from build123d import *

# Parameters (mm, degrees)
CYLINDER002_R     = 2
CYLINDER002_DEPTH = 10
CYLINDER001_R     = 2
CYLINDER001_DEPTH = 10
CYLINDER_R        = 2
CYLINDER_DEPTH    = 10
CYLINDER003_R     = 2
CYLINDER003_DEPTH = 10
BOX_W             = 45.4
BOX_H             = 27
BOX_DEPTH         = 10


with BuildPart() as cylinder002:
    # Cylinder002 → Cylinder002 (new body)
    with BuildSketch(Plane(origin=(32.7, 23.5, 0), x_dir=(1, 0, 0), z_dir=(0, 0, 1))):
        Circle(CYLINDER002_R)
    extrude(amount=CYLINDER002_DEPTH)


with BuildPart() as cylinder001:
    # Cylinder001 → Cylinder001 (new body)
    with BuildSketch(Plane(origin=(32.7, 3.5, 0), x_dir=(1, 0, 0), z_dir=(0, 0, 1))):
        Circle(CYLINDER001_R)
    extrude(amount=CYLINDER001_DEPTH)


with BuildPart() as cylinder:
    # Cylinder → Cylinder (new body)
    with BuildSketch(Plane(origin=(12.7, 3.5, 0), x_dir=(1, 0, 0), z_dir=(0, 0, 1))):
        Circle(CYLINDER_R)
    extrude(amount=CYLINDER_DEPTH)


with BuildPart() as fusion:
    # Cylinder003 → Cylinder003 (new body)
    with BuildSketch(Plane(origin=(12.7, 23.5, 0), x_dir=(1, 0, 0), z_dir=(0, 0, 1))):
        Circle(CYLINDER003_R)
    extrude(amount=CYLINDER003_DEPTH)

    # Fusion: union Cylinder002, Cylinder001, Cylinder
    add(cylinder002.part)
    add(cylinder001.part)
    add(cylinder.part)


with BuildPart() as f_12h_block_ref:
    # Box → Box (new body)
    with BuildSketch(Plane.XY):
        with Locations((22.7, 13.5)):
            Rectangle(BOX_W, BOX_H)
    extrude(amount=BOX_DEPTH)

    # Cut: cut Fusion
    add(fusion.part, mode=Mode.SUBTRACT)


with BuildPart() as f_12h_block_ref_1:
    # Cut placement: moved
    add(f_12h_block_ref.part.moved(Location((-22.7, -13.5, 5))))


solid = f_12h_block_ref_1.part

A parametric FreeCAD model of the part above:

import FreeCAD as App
import Part
import Sketcher
from FreeCAD import Vector
Q = App.Units.Quantity

doc = App.newDocument("Part")
body = doc.addObject("PartDesign::Body", "Body")

# Sketch on XY plane
sketch1 = doc.addObject("Sketcher::SketchObject", "Sketch")
body.addObject(sketch1)
sketch1.AttachmentSupport = (doc.XY_Plane, [""])
sketch1.MapMode = "FlatFace"
sketch1.addGeometry(Part.Circle(Vector(32.7, 23.5, 0), Vector(0, 0, 1), 2), False)
sketch1.addConstraint([
    Sketcher.Constraint("Diameter", 0, Q("4 mm")),
    Sketcher.Constraint("DistanceX", -1, 1, 0, 3, Q("32.7 mm")),
    Sketcher.Constraint("DistanceY", -1, 1, 0, 3, Q("23.5 mm")),
])
pad1 = doc.addObject("PartDesign::Pad", "Pad")
body.addObject(pad1)
pad1.Profile = sketch1
pad1.Length = 10
body2 = doc.addObject("PartDesign::Body", "Body001")

# Sketch on XY plane
sketch2 = doc.addObject("Sketcher::SketchObject", "Sketch001")
body2.addObject(sketch2)
sketch2.AttachmentSupport = (doc.getObject("XY_Plane001"), [""])
sketch2.MapMode = "FlatFace"
sketch2.addGeometry(Part.Circle(Vector(32.7, 3.5, 0), Vector(0, 0, 1), 2), False)
sketch2.addConstraint([
    Sketcher.Constraint("Diameter", 0, Q("4 mm")),
    Sketcher.Constraint("DistanceX", -1, 1, 0, 3, Q("32.7 mm")),
    Sketcher.Constraint("DistanceY", -1, 1, 0, 3, Q("3.5 mm")),
])
pad2 = doc.addObject("PartDesign::Pad", "Pad001")
body2.addObject(pad2)
pad2.Profile = sketch2
pad2.Length = 10
body3 = doc.addObject("PartDesign::Body", "Body002")

# Sketch on XY plane
sketch3 = doc.addObject("Sketcher::SketchObject", "Sketch002")
body3.addObject(sketch3)
sketch3.AttachmentSupport = (doc.getObject("XY_Plane002"), [""])
sketch3.MapMode = "FlatFace"
sketch3.addGeometry(Part.Circle(Vector(12.7, 3.5, 0), Vector(0, 0, 1), 2), False)
sketch3.addConstraint([
    Sketcher.Constraint("Diameter", 0, Q("4 mm")),
    Sketcher.Constraint("DistanceX", -1, 1, 0, 3, Q("12.7 mm")),
    Sketcher.Constraint("DistanceY", -1, 1, 0, 3, Q("3.5 mm")),
])
pad3 = doc.addObject("PartDesign::Pad", "Pad002")
body3.addObject(pad3)
pad3.Profile = sketch3
pad3.Length = 10
body4 = doc.addObject("PartDesign::Body", "Body003")
body4.AllowCompound = True

# Sketch on XY plane
sketch4 = doc.addObject("Sketcher::SketchObject", "Sketch003")
body4.addObject(sketch4)
sketch4.AttachmentSupport = (doc.getObject("XY_Plane003"), [""])
sketch4.MapMode = "FlatFace"
sketch4.addGeometry(Part.Circle(Vector(12.7, 23.5, 0), Vector(0, 0, 1), 2), False)
sketch4.addConstraint([
    Sketcher.Constraint("Diameter", 0, Q("4 mm")),
    Sketcher.Constraint("DistanceX", -1, 1, 0, 3, Q("12.7 mm")),
    Sketcher.Constraint("DistanceY", -1, 1, 0, 3, Q("23.5 mm")),
])
pad4 = doc.addObject("PartDesign::Pad", "Pad003")
body4.addObject(pad4)
pad4.Profile = sketch4
pad4.Length = 10
doc.recompute()

boolean = doc.addObject("PartDesign::Boolean", "Boolean")
body4.addObject(boolean)
boolean.Type = "Fuse"
boolean.addObjects([body])
doc.recompute()

boolean2 = doc.addObject("PartDesign::Boolean", "Boolean001")
body4.addObject(boolean2)
boolean2.Type = "Fuse"
boolean2.addObjects([body2])
doc.recompute()

boolean3 = doc.addObject("PartDesign::Boolean", "Boolean002")
body4.addObject(boolean3)
boolean3.Type = "Fuse"
boolean3.addObjects([body3])
body5 = doc.addObject("PartDesign::Body", "Body004")

# Sketch on XY plane
sketch5 = doc.addObject("Sketcher::SketchObject", "Sketch004")
body5.addObject(sketch5)
sketch5.AttachmentSupport = (doc.getObject("XY_Plane004"), [""])
sketch5.MapMode = "FlatFace"
sketch5.addGeometry([
    Part.LineSegment(Vector(0, 27, 0), Vector(0, 0, 0)),
    Part.LineSegment(Vector(0, 0, 0), Vector(45.4, 0, 0)),
    Part.LineSegment(Vector(45.4, 0, 0), Vector(45.4, 27, 0)),
    Part.LineSegment(Vector(45.4, 27, 0), Vector(0, 27, 0)),
], False)
sketch5.addConstraint([
    Sketcher.Constraint("Coincident", 0, 2, 1, 1),
    Sketcher.Constraint("Coincident", 1, 2, 2, 1),
    Sketcher.Constraint("Coincident", 2, 2, 3, 1),
    Sketcher.Constraint("Coincident", 3, 2, 0, 1),
    Sketcher.Constraint("Vertical", 0),
    Sketcher.Constraint("Horizontal", 1),
    Sketcher.Constraint("Vertical", 2),
    Sketcher.Constraint("Horizontal", 3),
    Sketcher.Constraint("Coincident", 0, 2, -1, 1),
    Sketcher.Constraint("DistanceY", 0, 2, 0, 1, Q("27 mm")),
    Sketcher.Constraint("DistanceX", 1, 1, 1, 2, Q("45.4 mm")),
])
pad5 = doc.addObject("PartDesign::Pad", "Pad004")
body5.addObject(pad5)
pad5.Profile = sketch5
pad5.Length = 10
doc.recompute()

boolean4 = doc.addObject("PartDesign::Boolean", "Boolean003")
body5.addObject(boolean4)
boolean4.Type = "Cut"
boolean4.addObjects([body4])
body6 = doc.addObject("PartDesign::Body", "Body005")
doc.recompute()

body5.Placement = App.Placement(Vector(-22.7, -13.5, 5), App.Rotation(Vector(0, 0, 1), 0))
boolean5 = doc.addObject("PartDesign::Boolean", "Boolean004")
body6.addObject(boolean5)
boolean5.Type = "Fuse"
boolean5.addObjects([body5])

doc.recompute()
